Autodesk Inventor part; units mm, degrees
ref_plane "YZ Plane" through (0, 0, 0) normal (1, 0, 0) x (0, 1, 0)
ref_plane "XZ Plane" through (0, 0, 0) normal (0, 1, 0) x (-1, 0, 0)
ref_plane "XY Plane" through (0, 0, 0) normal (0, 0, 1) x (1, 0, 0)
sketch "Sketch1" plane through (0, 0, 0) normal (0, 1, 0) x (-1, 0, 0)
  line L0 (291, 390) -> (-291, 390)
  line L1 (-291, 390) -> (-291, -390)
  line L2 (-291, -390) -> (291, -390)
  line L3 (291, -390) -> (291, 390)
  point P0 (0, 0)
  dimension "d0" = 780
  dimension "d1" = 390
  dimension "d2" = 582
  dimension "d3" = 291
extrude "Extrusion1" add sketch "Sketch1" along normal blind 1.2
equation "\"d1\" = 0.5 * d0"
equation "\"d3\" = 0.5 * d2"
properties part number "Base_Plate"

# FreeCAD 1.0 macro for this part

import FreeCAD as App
import Part
import Sketcher

V = App.Vector
Q = App.Units.Quantity


def add_polygon(sketch, points):
    """Adds a closed chain of lines whose ends are joined by coincident constraints."""
    first, n = sketch.GeometryCount, len(points)
    for a, b in zip(points, points[1:] + points[:1]):
        sketch.addGeometry(Part.LineSegment(App.Vector(*a, 0), App.Vector(*b, 0)), False)
    for i in range(n):
        sketch.addConstraint(Sketcher.Constraint("Coincident", first + i, 2, first + (i + 1) % n, 1))

doc = App.newDocument("Part")
body = doc.addObject("PartDesign::Body", "Body")

# Sketch on XZ plane
sketch1 = body.newObject("Sketcher::SketchObject", "Sketch")
sketch1.AttachmentSupport = (doc.getObject("XZ_Plane"), [""])
sketch1.MapMode = "FlatFace"
add_polygon(sketch1, [(-291, -390), (-291, 390), (291, 390), (291, -390)])  # lines 0-3
sketch1.addConstraint(Sketcher.Constraint("Vertical", 0))
sketch1.addConstraint(Sketcher.Constraint("Horizontal", 1))
sketch1.addConstraint(Sketcher.Constraint("Vertical", 2))
sketch1.addConstraint(Sketcher.Constraint("Horizontal", 3))
sketch1.addConstraint(Sketcher.Constraint("Symmetric", 0, 2, 2, 2, -1, 1))
sketch1.addConstraint(Sketcher.Constraint("DistanceX", 1, 1, 1, 2, Q("582 mm")))
sketch1.addConstraint(Sketcher.Constraint("DistanceY", 0, 1, 0, 2, Q("780 mm")))
pad1 = body.newObject("PartDesign::Pad", "Pad")
pad1.Profile = sketch1
pad1.Length = 1.2
pad1.Reversed = True

doc.recompute()
